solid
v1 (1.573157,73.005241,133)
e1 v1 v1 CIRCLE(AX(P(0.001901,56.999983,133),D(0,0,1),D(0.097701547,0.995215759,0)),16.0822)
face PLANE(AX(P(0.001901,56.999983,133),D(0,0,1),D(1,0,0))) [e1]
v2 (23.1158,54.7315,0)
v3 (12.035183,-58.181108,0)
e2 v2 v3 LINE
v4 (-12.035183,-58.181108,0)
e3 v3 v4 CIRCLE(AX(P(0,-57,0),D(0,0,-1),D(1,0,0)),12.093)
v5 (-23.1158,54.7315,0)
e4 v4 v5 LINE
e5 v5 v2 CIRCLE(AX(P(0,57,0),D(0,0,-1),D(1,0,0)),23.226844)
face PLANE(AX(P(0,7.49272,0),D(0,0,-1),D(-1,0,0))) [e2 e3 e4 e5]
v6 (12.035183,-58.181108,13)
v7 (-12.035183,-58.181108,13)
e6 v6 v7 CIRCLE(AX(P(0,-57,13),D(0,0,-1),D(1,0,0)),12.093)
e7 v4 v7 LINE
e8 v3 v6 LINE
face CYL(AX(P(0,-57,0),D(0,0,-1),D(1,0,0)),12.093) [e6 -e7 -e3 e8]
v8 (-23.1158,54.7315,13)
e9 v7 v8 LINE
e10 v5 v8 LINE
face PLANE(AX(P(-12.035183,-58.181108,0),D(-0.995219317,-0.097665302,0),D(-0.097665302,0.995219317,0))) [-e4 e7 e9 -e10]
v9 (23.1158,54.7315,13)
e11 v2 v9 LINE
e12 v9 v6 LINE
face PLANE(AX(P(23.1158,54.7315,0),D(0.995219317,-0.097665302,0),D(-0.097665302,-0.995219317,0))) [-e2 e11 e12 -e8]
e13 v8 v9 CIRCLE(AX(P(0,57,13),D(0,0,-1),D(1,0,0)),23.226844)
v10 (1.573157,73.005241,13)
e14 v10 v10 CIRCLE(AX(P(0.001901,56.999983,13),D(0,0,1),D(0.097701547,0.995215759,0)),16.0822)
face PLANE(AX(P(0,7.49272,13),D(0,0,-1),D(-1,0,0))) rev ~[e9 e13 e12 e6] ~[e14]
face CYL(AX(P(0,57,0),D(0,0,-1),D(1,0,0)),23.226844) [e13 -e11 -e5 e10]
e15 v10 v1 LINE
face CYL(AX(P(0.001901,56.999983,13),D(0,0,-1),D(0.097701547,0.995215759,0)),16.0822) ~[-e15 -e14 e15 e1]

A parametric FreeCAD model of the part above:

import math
import FreeCAD as App
import Part
import Sketcher

V = App.Vector

doc = App.newDocument("Part")
params = doc.addObject("Spreadsheet::Sheet", "Params")
for row, (alias, value) in enumerate([
    ("pad1_length", "13 mm"),
    ("pad2_length", "120 mm"),
], start=1):
    params.set(f"A{row}", alias)
    params.set(f"B{row}", "=" + value)
    params.setAlias(f"B{row}", alias)

body = doc.addObject("PartDesign::Body", "Body")

# Sketch on XY plane
sketch1 = doc.addObject("Sketcher::SketchObject", "Sketch")
body.addObject(sketch1)
sketch1.AttachmentSupport = (doc.XY_Plane, [""])
sketch1.MapMode = "FlatFace"
sketch1.addGeometry([
    Part.LineSegment(V(-23, 55, 0), V(-12, -58, 0)),
    Part.ArcOfCircle(Part.Circle(V(0, -57, 0), V(0, 0, 1), 12), math.radians(-174), math.radians(-6)),
    Part.LineSegment(V(12, -58, 0), V(23, 55, 0)),
    Part.ArcOfCircle(Part.Circle(V(0, 57, 0), V(0, 0, 1), 23), math.radians(-6), math.radians(186)),
], False)
sketch1.addConstraint([
    Sketcher.Constraint("Tangent", 0, 2, 1, 1),
    Sketcher.Constraint("Tangent", 1, 2, 2, 1),
    Sketcher.Constraint("Tangent", 2, 2, 3, 1),
    Sketcher.Constraint("Tangent", 3, 2, 0, 1),
    Sketcher.Constraint("Symmetric", 1, 3, 3, 3, -1, 1),
    Sketcher.Constraint("PointOnObject", 1, 3, -2),
    Sketcher.Constraint("DistanceY", 1, 3, -1, 1, 57.0),
    Sketcher.Constraint("Radius", 1, 12.093),
    Sketcher.Constraint("Radius", 3, 23.2268),
])
pad1 = doc.addObject("PartDesign::Pad", "Pad")
body.addObject(pad1)
pad1.Profile = sketch1
pad1.setExpression("Length", "Params.pad1_length")

# Sketch on XY plane
sketch2 = doc.addObject("Sketcher::SketchObject", "Sketch001")
body.addObject(sketch2)
sketch2.AttachmentSupport = (doc.XY_Plane, [""])
sketch2.MapMode = "FlatFace"
sketch2.AttachmentOffset = App.Placement(V(0, 0, 13), App.Rotation())
sketch2.addGeometry(Part.Circle(V(0, 57, 0), V(0, 0, 1), 16), False)
sketch2.addConstraint([
    Sketcher.Constraint("DistanceY", -1, 1, 0, 3, 57.0),
    Sketcher.Constraint("Diameter", 0, 32.1644),
    Sketcher.Constraint("DistanceX", -1, 1, 0, 3, 0.002),
])
pad2 = doc.addObject("PartDesign::Pad", "Pad001")
body.addObject(pad2)
pad2.Profile = sketch2
pad2.setExpression("Length", "Params.pad2_length")

doc.recompute()
